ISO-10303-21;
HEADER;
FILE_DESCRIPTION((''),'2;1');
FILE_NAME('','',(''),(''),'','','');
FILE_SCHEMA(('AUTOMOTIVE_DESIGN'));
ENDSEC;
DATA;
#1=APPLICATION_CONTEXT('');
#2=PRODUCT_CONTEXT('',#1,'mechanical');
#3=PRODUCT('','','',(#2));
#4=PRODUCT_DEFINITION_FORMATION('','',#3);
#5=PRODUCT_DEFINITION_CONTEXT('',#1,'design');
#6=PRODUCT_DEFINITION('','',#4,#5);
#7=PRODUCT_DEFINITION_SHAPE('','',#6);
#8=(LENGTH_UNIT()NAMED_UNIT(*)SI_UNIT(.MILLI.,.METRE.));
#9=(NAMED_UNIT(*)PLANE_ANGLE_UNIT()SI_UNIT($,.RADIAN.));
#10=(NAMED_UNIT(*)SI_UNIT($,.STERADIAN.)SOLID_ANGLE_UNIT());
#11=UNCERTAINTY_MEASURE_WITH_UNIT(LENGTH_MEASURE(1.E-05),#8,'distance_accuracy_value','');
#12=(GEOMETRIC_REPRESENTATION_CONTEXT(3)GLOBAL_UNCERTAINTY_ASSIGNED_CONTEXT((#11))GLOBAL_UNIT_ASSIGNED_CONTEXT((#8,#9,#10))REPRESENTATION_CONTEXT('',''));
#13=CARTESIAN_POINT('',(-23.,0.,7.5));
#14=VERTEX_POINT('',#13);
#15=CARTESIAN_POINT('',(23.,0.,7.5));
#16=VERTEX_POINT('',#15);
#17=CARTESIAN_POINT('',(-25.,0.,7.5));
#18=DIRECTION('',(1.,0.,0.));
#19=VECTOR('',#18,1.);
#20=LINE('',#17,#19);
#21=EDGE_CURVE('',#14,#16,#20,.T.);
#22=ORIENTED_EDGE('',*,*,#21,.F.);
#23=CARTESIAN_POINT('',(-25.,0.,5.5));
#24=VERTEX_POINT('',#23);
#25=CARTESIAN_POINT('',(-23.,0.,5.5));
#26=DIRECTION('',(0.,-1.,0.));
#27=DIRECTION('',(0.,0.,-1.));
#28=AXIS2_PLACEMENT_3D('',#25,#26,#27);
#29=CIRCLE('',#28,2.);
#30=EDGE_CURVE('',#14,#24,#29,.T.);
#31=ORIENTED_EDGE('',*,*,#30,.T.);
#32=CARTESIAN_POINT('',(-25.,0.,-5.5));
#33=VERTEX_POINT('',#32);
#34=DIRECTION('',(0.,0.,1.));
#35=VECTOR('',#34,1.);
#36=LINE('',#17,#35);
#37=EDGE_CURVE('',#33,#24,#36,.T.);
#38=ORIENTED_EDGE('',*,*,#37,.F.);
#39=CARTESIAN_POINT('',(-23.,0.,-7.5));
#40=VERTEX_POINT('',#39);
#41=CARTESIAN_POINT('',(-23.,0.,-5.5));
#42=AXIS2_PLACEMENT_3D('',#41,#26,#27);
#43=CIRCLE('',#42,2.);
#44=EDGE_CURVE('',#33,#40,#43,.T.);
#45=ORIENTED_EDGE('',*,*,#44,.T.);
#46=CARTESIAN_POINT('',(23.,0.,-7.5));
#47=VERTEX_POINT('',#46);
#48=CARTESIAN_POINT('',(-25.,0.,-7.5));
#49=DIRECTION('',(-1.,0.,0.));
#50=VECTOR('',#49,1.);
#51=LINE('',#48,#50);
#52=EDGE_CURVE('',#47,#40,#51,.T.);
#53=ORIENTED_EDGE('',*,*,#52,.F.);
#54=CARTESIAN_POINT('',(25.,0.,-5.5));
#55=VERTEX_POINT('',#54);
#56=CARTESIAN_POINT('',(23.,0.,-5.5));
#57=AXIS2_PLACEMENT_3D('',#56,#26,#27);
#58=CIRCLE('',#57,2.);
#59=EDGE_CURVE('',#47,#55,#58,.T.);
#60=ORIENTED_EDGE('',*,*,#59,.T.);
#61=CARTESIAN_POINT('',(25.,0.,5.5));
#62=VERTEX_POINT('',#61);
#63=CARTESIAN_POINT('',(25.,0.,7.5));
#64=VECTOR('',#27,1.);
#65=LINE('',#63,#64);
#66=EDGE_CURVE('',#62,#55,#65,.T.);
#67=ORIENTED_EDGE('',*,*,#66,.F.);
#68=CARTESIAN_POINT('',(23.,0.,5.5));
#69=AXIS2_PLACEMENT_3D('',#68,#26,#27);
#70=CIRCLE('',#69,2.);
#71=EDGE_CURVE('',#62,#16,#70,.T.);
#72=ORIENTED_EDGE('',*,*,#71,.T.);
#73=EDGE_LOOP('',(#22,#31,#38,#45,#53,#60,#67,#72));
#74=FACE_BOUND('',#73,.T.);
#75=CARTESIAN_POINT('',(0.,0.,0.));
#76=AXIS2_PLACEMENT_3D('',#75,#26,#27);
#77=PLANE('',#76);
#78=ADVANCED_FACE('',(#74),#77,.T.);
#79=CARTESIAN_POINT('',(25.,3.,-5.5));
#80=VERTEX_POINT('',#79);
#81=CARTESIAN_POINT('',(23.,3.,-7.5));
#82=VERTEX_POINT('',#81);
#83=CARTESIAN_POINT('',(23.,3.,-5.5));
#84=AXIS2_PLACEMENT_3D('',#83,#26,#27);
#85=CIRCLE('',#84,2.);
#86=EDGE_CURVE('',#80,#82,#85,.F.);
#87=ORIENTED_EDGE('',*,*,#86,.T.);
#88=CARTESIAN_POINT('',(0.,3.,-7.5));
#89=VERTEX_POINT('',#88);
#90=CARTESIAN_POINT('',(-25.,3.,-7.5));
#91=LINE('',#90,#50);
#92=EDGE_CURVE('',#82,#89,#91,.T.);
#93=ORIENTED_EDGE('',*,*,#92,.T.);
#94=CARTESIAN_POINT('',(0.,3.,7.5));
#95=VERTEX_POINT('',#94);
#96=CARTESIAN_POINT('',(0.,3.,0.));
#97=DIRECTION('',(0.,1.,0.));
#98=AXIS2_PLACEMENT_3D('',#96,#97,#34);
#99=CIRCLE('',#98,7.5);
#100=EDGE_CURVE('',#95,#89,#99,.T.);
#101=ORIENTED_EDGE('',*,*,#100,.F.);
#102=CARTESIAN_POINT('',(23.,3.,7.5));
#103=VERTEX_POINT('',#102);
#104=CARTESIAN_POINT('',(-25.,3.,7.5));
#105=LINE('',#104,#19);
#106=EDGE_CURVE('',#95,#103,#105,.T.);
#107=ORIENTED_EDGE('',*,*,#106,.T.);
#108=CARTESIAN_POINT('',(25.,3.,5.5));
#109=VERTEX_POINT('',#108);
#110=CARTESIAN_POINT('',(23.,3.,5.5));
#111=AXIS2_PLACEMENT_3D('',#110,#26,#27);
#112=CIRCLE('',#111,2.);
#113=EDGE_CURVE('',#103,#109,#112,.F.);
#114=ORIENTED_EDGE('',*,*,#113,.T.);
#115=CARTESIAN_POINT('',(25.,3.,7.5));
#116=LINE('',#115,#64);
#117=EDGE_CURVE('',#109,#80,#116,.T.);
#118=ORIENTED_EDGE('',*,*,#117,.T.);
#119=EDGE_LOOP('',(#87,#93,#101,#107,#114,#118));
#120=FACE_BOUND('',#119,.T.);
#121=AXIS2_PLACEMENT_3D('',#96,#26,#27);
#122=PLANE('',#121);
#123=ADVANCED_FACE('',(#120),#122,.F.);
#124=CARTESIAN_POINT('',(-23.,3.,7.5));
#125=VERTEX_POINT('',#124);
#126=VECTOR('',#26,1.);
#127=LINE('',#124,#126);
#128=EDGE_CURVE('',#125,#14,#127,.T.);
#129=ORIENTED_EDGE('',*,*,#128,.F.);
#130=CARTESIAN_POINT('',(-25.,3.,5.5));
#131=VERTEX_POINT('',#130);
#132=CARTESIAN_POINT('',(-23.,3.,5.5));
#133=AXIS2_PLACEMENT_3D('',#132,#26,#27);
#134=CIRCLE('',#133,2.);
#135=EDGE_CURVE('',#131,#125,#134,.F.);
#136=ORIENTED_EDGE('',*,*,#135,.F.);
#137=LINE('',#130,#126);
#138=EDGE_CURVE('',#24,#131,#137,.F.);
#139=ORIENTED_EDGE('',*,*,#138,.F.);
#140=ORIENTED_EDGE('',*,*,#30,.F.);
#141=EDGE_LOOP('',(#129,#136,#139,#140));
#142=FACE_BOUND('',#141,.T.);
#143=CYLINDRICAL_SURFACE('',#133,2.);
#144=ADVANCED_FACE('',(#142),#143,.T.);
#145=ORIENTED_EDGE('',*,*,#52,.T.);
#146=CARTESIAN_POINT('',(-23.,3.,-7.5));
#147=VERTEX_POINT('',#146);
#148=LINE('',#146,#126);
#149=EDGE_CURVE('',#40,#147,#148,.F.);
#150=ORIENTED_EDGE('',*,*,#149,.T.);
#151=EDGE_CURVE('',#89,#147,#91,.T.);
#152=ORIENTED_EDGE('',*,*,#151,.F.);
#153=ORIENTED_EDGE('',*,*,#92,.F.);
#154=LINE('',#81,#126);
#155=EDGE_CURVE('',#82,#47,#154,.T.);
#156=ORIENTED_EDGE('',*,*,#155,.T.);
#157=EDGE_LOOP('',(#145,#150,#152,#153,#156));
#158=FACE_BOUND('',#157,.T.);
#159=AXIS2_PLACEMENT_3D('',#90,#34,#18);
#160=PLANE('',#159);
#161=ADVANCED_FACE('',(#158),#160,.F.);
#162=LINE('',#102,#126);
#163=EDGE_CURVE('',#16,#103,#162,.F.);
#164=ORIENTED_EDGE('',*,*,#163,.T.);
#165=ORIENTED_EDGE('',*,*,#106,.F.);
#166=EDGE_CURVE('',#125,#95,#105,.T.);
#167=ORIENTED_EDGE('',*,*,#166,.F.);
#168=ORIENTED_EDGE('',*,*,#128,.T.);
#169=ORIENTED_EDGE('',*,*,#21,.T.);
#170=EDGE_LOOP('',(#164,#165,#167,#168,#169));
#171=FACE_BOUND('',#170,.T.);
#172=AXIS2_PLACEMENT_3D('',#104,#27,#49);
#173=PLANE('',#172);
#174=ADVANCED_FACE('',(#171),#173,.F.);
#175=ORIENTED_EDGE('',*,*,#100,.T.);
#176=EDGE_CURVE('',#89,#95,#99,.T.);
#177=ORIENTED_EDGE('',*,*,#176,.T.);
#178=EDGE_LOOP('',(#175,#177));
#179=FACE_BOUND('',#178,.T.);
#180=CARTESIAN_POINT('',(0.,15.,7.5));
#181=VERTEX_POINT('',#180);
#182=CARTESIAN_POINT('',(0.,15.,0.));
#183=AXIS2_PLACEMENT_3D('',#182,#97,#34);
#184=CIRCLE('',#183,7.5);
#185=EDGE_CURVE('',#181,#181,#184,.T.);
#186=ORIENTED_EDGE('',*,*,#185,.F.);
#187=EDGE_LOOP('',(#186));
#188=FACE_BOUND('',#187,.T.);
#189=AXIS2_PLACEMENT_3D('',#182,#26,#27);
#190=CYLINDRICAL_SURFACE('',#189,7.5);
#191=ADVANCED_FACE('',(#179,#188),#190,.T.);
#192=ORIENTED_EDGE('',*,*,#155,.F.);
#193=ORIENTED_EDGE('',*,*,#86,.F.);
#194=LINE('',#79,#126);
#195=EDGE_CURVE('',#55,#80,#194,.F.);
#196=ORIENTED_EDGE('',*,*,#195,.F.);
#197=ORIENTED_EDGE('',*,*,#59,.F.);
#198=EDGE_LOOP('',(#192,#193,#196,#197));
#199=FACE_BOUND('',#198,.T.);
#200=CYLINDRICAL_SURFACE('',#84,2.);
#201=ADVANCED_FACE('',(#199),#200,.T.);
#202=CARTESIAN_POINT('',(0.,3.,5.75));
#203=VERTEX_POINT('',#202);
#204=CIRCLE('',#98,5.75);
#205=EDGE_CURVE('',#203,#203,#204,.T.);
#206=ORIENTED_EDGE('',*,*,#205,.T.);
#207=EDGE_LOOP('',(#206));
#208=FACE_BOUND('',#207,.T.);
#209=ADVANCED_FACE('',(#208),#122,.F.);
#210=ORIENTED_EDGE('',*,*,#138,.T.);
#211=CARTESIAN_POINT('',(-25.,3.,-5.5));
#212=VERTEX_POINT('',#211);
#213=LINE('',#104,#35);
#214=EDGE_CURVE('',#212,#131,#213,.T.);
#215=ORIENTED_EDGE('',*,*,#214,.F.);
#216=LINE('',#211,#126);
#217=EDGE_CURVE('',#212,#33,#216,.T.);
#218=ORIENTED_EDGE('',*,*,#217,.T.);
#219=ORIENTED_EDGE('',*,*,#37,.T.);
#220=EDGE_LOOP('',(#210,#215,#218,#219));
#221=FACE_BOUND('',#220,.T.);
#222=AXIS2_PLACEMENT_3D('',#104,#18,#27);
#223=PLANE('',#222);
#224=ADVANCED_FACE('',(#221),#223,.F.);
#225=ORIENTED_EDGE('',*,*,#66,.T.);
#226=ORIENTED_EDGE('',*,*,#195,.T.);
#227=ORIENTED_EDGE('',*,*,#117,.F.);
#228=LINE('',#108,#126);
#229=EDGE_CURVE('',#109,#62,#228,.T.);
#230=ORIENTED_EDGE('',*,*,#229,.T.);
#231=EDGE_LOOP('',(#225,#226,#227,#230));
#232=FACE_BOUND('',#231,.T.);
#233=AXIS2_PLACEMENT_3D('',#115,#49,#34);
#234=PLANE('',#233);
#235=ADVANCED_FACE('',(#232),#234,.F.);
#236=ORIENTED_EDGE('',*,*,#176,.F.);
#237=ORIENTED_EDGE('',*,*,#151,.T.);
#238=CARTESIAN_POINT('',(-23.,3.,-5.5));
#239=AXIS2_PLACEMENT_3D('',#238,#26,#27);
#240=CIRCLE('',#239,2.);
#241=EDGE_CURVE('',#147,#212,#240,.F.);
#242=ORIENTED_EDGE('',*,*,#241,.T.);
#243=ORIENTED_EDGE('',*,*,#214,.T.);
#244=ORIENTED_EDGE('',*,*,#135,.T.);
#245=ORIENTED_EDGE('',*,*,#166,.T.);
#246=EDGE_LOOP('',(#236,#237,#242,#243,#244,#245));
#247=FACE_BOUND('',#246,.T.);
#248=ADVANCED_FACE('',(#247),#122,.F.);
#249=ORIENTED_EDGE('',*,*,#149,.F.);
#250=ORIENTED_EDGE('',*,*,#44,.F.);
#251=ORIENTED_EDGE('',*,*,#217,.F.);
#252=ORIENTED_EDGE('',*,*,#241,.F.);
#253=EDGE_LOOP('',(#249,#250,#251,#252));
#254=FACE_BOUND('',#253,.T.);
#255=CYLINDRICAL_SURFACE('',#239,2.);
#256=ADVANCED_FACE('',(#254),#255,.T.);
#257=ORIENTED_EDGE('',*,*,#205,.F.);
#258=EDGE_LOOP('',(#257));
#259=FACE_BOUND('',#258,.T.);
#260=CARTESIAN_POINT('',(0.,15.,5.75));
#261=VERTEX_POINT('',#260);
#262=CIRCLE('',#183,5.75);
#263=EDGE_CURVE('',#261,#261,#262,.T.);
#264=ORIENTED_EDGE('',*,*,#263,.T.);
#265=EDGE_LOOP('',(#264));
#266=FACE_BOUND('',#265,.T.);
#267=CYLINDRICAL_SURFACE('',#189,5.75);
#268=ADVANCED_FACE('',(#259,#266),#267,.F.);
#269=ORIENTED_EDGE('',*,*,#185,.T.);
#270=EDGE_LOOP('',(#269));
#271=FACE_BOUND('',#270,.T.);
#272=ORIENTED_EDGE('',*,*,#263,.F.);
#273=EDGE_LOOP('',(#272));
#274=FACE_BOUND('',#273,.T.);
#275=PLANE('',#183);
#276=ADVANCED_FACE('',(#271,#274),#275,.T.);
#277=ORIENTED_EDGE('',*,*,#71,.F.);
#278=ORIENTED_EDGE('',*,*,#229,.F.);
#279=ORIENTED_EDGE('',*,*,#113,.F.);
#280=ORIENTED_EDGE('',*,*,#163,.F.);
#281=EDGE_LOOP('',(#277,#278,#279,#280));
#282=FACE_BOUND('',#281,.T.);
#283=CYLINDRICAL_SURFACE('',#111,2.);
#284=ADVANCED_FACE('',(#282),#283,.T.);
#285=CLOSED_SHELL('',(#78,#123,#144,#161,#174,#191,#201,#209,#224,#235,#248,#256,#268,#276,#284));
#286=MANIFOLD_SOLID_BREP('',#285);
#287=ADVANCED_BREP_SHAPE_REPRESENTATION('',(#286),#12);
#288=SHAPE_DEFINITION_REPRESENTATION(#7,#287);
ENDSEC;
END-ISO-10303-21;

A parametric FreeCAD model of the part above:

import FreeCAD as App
import Part
import Sketcher


def edges_at(feature, points):
    """Names of the edges that pass closest to the given points."""
    edges = feature.Shape.Edges
    near = lambda p: min(range(len(edges)), key=lambda i: edges[i].distToShape(Part.Vertex(*p))[0])
    return sorted({f"Edge{near(p) + 1}" for p in points})


def add_polygon(sketch, points):
    """Adds a closed chain of lines whose ends are joined by coincident constraints."""
    first, n = sketch.GeometryCount, len(points)
    for a, b in zip(points, points[1:] + points[:1]):
        sketch.addGeometry(Part.LineSegment(App.Vector(*a, 0), App.Vector(*b, 0)), False)
    for i in range(n):
        sketch.addConstraint(Sketcher.Constraint("Coincident", first + i, 2, first + (i + 1) % n, 1))

doc = App.newDocument("Part")
params = doc.addObject("Spreadsheet::Sheet", "Params")
for row, (alias, value) in enumerate([
    ("sketch1_width", "50 mm"),
    ("sketch1_height", "15 mm"),
    ("pad1_length", "3 mm"),
    ("sketch2_diameter", "15 mm"),
    ("sketch2_diameter2", "11.5 mm"),
    ("pad2_length", "12 mm"),
    ("fillet_radius", "2 mm"),
], start=1):
    params.set(f"A{row}", alias)
    params.set(f"B{row}", "=" + value)
    params.setAlias(f"B{row}", alias)

body = doc.addObject("PartDesign::Body", "Body")

sketch1 = body.newObject("Sketcher::SketchObject", "Sketch")
sketch1.AttachmentSupport = (doc.getObject("XZ_Plane"), [""])
sketch1.MapMode = "FlatFace"
add_polygon(sketch1, [(-25, -8), (-25, 8), (25, 8), (25, -8)])
sketch1.addConstraint([
    Sketcher.Constraint("Vertical", 0),
    Sketcher.Constraint("Horizontal", 1),
    Sketcher.Constraint("Vertical", 2),
    Sketcher.Constraint("Horizontal", 3),
    Sketcher.Constraint("Symmetric", 0, 2, 2, 2, -1, 1),
    Sketcher.Constraint("DistanceX", 1, 1, 1, 2, 50.0),
    Sketcher.Constraint("DistanceY", 0, 1, 0, 2, 15.0),
])
sketch1.setExpression("Constraints[9]", "Params.sketch1_width")
sketch1.setExpression("Constraints[10]", "Params.sketch1_height")
pad1 = body.newObject("PartDesign::Pad", "Pad")
pad1.Profile = sketch1
pad1.setExpression("Length", "Params.pad1_length")
pad1.Reversed = True

sketch2 = body.newObject("Sketcher::SketchObject", "Sketch001")
sketch2.AttachmentSupport = (doc.getObject("XZ_Plane"), [""])
sketch2.MapMode = "FlatFace"
sketch2.AttachmentOffset = App.Placement(App.Vector(0, 0, -3), App.Rotation())
sketch2.addGeometry([
    Part.Circle(App.Vector(0, 0, 0), App.Vector(0, 0, 1), 8),
    Part.Circle(App.Vector(0, 0, 0), App.Vector(0, 0, 1), 6),
], False)
sketch2.addConstraint([
    Sketcher.Constraint("Coincident", 0, 3, -1, 1),
    Sketcher.Constraint("Coincident", 1, 3, -1, 1),
    Sketcher.Constraint("Diameter", 0, 15.0),
    Sketcher.Constraint("Diameter", 1, 11.5),
])
sketch2.setExpression("Constraints[2]", "Params.sketch2_diameter")
sketch2.setExpression("Constraints[3]", "Params.sketch2_diameter2")
pad2 = body.newObject("PartDesign::Pad", "Pad001")
pad2.Profile = sketch2
pad2.setExpression("Length", "Params.pad2_length")
pad2.Reversed = True
doc.recompute()

fillet = body.newObject("PartDesign::Fillet", "Fillet")
fillet.Base = (pad2, edges_at(pad2, [
    (25, 1.5, 7.5),
    (-25, 1.5, 7.5),
    (-25, 1.5, -7.5),
    (25, 1.5, -7.5),
]))
fillet.setExpression("Radius", "Params.fillet_radius")

doc.recompute()
